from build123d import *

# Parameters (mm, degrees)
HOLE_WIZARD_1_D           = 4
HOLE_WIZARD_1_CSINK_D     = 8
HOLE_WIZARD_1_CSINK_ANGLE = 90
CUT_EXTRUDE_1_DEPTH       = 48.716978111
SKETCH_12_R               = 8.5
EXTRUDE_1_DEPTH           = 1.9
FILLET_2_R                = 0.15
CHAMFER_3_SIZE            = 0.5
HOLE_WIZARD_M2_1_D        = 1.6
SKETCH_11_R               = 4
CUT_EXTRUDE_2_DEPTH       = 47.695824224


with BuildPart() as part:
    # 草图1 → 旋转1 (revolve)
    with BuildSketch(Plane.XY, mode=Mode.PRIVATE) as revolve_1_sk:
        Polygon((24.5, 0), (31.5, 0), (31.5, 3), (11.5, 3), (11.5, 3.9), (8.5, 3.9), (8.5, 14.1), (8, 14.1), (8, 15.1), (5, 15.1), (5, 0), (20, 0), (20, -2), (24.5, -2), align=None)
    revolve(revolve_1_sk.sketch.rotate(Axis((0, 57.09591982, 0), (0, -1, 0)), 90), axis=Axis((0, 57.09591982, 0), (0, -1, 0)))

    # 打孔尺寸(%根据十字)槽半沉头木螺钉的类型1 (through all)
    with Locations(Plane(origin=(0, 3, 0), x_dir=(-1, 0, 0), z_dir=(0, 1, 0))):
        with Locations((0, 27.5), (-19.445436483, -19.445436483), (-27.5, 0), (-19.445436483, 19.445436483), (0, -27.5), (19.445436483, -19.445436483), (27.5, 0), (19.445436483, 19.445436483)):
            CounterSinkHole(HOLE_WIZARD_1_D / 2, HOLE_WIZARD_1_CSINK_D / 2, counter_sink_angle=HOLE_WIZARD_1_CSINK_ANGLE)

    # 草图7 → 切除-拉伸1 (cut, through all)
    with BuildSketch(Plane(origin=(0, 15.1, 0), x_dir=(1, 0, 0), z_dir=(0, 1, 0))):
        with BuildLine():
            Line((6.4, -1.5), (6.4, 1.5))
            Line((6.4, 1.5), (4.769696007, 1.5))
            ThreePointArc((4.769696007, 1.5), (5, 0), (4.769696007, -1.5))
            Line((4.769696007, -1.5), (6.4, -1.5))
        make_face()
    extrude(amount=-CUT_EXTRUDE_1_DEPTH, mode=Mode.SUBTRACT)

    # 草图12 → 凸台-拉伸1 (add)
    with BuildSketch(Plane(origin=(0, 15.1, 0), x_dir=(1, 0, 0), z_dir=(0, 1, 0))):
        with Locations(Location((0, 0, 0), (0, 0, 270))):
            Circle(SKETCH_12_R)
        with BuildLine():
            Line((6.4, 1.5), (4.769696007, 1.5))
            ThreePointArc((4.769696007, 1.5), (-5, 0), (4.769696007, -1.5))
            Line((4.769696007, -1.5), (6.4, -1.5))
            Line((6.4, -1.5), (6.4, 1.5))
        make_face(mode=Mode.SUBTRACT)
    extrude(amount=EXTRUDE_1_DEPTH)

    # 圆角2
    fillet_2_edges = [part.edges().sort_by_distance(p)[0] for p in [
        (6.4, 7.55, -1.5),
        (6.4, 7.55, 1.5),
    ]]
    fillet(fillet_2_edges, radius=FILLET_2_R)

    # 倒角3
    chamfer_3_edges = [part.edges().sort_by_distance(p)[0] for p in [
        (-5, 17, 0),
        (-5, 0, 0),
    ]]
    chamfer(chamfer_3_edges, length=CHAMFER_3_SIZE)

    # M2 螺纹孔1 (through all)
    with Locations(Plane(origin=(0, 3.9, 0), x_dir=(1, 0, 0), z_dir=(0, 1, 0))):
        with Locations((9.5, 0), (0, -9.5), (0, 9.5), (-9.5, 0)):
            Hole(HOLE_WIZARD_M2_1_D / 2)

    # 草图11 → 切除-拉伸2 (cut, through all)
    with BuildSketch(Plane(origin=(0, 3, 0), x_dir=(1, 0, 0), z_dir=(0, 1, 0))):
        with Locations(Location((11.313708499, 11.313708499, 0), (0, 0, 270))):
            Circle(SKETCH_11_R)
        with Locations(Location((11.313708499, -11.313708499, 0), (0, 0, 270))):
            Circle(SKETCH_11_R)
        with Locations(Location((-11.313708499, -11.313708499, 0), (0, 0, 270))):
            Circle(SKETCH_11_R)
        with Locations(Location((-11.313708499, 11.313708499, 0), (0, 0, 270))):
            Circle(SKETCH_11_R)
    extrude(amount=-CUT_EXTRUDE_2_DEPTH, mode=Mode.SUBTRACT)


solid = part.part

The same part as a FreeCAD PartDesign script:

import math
import FreeCAD as App
import Part
import Sketcher
from FreeCAD import Vector


def edges_at(feature, points):
    """Names of the edges that pass closest to the given points."""
    edges = feature.Shape.Edges
    near = lambda p: min(range(len(edges)), key=lambda i: edges[i].distToShape(Part.Vertex(*p))[0])
    return sorted({f"Edge{near(p) + 1}" for p in points})

doc = App.newDocument("Part")
body = doc.addObject("PartDesign::Body", "Body")

# Sketch on XY plane
sketch1 = body.newObject("Sketcher::SketchObject", "Sketch")
sketch1.AttachmentSupport = (doc.getObject("XY_Plane"), [""])
sketch1.MapMode = "FlatFace"
sketch1.addGeometry(Part.LineSegment(Vector(24.5, 0, 0), Vector(31.5, 0, 0)), False)
sketch1.addGeometry(Part.LineSegment(Vector(31.5, 0, 0), Vector(31.5, 3, 0)), False)
sketch1.addGeometry(Part.LineSegment(Vector(31.5, 3, 0), Vector(11.5, 3, 0)), False)
sketch1.addGeometry(Part.LineSegment(Vector(11.5, 3, 0), Vector(11.5, 3.9, 0)), False)
sketch1.addGeometry(Part.LineSegment(Vector(11.5, 3.9, 0), Vector(8.5, 3.9, 0)), False)
sketch1.addGeometry(Part.LineSegment(Vector(8.5, 3.9, 0), Vector(8.5, 14.1, 0)), False)
sketch1.addGeometry(Part.LineSegment(Vector(8.5, 14.1, 0), Vector(8, 14.1, 0)), False)
sketch1.addGeometry(Part.LineSegment(Vector(8, 14.1, 0), Vector(8, 15.1, 0)), False)
sketch1.addGeometry(Part.LineSegment(Vector(8, 15.1, 0), Vector(5, 15.1, 0)), False)
sketch1.addGeometry(Part.LineSegment(Vector(5, 15.1, 0), Vector(5, 0, 0)), False)
sketch1.addGeometry(Part.LineSegment(Vector(5, 0, 0), Vector(20, 0, 0)), False)
sketch1.addGeometry(Part.LineSegment(Vector(20, 0, 0), Vector(20, -2, 0)), False)
sketch1.addGeometry(Part.LineSegment(Vector(20, -2, 0), Vector(24.5, -2, 0)), False)
sketch1.addGeometry(Part.LineSegment(Vector(24.5, -2, 0), Vector(24.5, 0, 0)), False)
sketch1.addConstraint(Sketcher.Constraint("Coincident", 0, 2, 1, 1))
sketch1.addConstraint(Sketcher.Constraint("Coincident", 1, 2, 2, 1))
sketch1.addConstraint(Sketcher.Constraint("Coincident", 2, 2, 3, 1))
sketch1.addConstraint(Sketcher.Constraint("Coincident", 3, 2, 4, 1))
sketch1.addConstraint(Sketcher.Constraint("Coincident", 4, 2, 5, 1))
sketch1.addConstraint(Sketcher.Constraint("Coincident", 5, 2, 6, 1))
sketch1.addConstraint(Sketcher.Constraint("Coincident", 6, 2, 7, 1))
sketch1.addConstraint(Sketcher.Constraint("Coincident", 7, 2, 8, 1))
sketch1.addConstraint(Sketcher.Constraint("Coincident", 8, 2, 9, 1))
sketch1.addConstraint(Sketcher.Constraint("Coincident", 9, 2, 10, 1))
sketch1.addConstraint(Sketcher.Constraint("Coincident", 10, 2, 11, 1))
sketch1.addConstraint(Sketcher.Constraint("Coincident", 11, 2, 12, 1))
sketch1.addConstraint(Sketcher.Constraint("Coincident", 12, 2, 13, 1))
sketch1.addConstraint(Sketcher.Constraint("Coincident", 13, 2, 0, 1))
sketch1.addConstraint(Sketcher.Constraint("Horizontal", 0))
sketch1.addConstraint(Sketcher.Constraint("Vertical", 1))
sketch1.addConstraint(Sketcher.Constraint("Horizontal", 2))
sketch1.addConstraint(Sketcher.Constraint("Vertical", 3))
sketch1.addConstraint(Sketcher.Constraint("Horizontal", 4))
sketch1.addConstraint(Sketcher.Constraint("Vertical", 5))
sketch1.addConstraint(Sketcher.Constraint("Horizontal", 6))
sketch1.addConstraint(Sketcher.Constraint("Vertical", 7))
sketch1.addConstraint(Sketcher.Constraint("Horizontal", 8))
sketch1.addConstraint(Sketcher.Constraint("Vertical", 9))
sketch1.addConstraint(Sketcher.Constraint("Horizontal", 10))
sketch1.addConstraint(Sketcher.Constraint("Vertical", 11))
sketch1.addConstraint(Sketcher.Constraint("Horizontal", 12))
sketch1.addConstraint(Sketcher.Constraint("Vertical", 13))
sketch1.addConstraint(Sketcher.Constraint("PointOnObject", 0, 2, -1))
sketch1.addConstraint(Sketcher.Constraint("PointOnObject", 9, 2, -1))
sketch1.addConstraint(Sketcher.Constraint("Equal", 4, 8))
sketch1.addConstraint(Sketcher.Constraint("Equal", 8, 1))
sketch1.addConstraint(Sketcher.Constraint("DistanceX", 0, 1, 0, 2, 7.0))
sketch1.addConstraint(Sketcher.Constraint("DistanceX", 2, 2, 2, 1, 20.0))
sketch1.addConstraint(Sketcher.Constraint("DistanceX", 4, 2, 4, 1, 3.0))
sketch1.addConstraint(Sketcher.Constraint("DistanceX", 10, 1, 10, 2, 15.0))
sketch1.addConstraint(Sketcher.Constraint("DistanceY", 7, 1, 7, 2, 1.0))
sketch1.addConstraint(Sketcher.Constraint("DistanceY", 11, 2, 11, 1, 2.0))
sketch1.addConstraint(Sketcher.Constraint("DistanceX", 6, 2, 6, 1, 0.5))
sketch1.addConstraint(Sketcher.Constraint("DistanceY", 3, 1, 3, 2, 0.9))
sketch1.addConstraint(Sketcher.Constraint("DistanceY", 5, 1, 5, 2, 10.2))
sketch1.addConstraint(Sketcher.Constraint("DistanceX", -1, 1, 6, 2, 8.0))
revolution = body.newObject("PartDesign::Revolution", "Revolution")
revolution.Profile = sketch1
revolution.ReferenceAxis = (sketch1, ["V_Axis"])
revolution.Angle = 360

# Sketch on XZ plane
sketch2 = body.newObject("Sketcher::SketchObject", "Sketch001")
sketch2.AttachmentSupport = (doc.getObject("XZ_Plane"), [""])
sketch2.MapMode = "FlatFace"
sketch2.AttachmentOffset = App.Placement(Vector(0, 0, -3), App.Rotation())
sketch2.addGeometry(Part.Circle(Vector(0, 27.5, 0), Vector(0, 0, 1), 2), False)
sketch2.addGeometry(Part.Circle(Vector(19.445436, -19.445436, 0), Vector(0, 0, 1), 2), False)
sketch2.addGeometry(Part.Circle(Vector(27.5, 0, 0), Vector(0, 0, 1), 2), False)
sketch2.addGeometry(Part.Circle(Vector(19.445436, 19.445436, 0), Vector(0, 0, 1), 2), False)
sketch2.addGeometry(Part.Circle(Vector(0, -27.5, 0), Vector(0, 0, 1), 2), False)
sketch2.addGeometry(Part.Circle(Vector(-19.445436, -19.445436, 0), Vector(0, 0, 1), 2), False)
sketch2.addGeometry(Part.Circle(Vector(-27.5, 0, 0), Vector(0, 0, 1), 2), False)
sketch2.addGeometry(Part.Circle(Vector(-19.445436, 19.445436, 0), Vector(0, 0, 1), 2), False)
sketch2.addConstraint(Sketcher.Constraint("Equal", 0, 1))
sketch2.addConstraint(Sketcher.Constraint("Equal", 1, 2))
sketch2.addConstraint(Sketcher.Constraint("Equal", 2, 3))
sketch2.addConstraint(Sketcher.Constraint("Equal", 3, 4))
sketch2.addConstraint(Sketcher.Constraint("Equal", 4, 5))
sketch2.addConstraint(Sketcher.Constraint("Equal", 5, 6))
sketch2.addConstraint(Sketcher.Constraint("Equal", 6, 7))
sketch2.addConstraint(Sketcher.Constraint("Symmetric", 0, 3, 4, 3, -1, 1))
sketch2.addConstraint(Sketcher.Constraint("Symmetric", 3, 3, 5, 3, -1, 1))
sketch2.addConstraint(Sketcher.Constraint("Symmetric", 2, 3, 6, 3, -1, 1))
sketch2.addConstraint(Sketcher.Constraint("Symmetric", 1, 3, 7, 3, -1, 1))
sketch2.addConstraint(Sketcher.Constraint("Symmetric", 1, 3, 5, 3, -2))
sketch2.addConstraint(Sketcher.Constraint("PointOnObject", 0, 3, -2))
sketch2.addConstraint(Sketcher.Constraint("PointOnObject", 2, 3, -1))
sketch2.addConstraint(Sketcher.Constraint("Diameter", 0, 4.0))
sketch2.addConstraint(Sketcher.Constraint("DistanceY", 4, 3, 0, 3, 55.0))
sketch2.addConstraint(Sketcher.Constraint("DistanceX", -1, 1, 2, 3, 27.5))
sketch2.addConstraint(Sketcher.Constraint("DistanceX", -1, 1, 1, 3, 19.445436))
sketch2.addConstraint(Sketcher.Constraint("DistanceY", 1, 3, -1, 1, 19.445436))
doc.recompute()
hole = body.newObject("PartDesign::Hole", "Hole")
hole.Profile = sketch2
hole.ThreadType = "None"
hole.Diameter = 4
hole.DepthType = "ThroughAll"
hole.HoleCutType = "Countersink"
hole.HoleCutDiameter = 8
hole.HoleCutCountersinkAngle = 90
hole.Reversed = True

# Sketch on XZ plane
sketch3 = body.newObject("Sketcher::SketchObject", "Sketch002")
sketch3.AttachmentSupport = (doc.getObject("XZ_Plane"), [""])
sketch3.MapMode = "FlatFace"
sketch3.AttachmentOffset = App.Placement(Vector(0, 0, -15.1), App.Rotation())
sketch3.addGeometry(Part.LineSegment(Vector(6.4, 1.5, 0), Vector(6.4, -1.5, 0)), False)
sketch3.addGeometry(Part.LineSegment(Vector(6.4, -1.5, 0), Vector(4.769696, -1.5, 0)), False)
sketch3.addGeometry(Part.ArcOfCircle(Part.Circle(Vector(0, 0, 0), Vector(0, 0, 1), 5), math.radians(-17.457603), math.radians(17.457603)), False)
sketch3.addGeometry(Part.LineSegment(Vector(4.769696, 1.5, 0), Vector(6.4, 1.5, 0)), False)
sketch3.addConstraint(Sketcher.Constraint("Coincident", 0, 2, 1, 1))
sketch3.addConstraint(Sketcher.Constraint("Coincident", 1, 2, 2, 1))
sketch3.addConstraint(Sketcher.Constraint("Coincident", 2, 2, 3, 1))
sketch3.addConstraint(Sketcher.Constraint("Coincident", 3, 2, 0, 1))
sketch3.addConstraint(Sketcher.Constraint("Vertical", 0))
sketch3.addConstraint(Sketcher.Constraint("Horizontal", 1))
sketch3.addConstraint(Sketcher.Constraint("Horizontal", 3))
sketch3.addConstraint(Sketcher.Constraint("Coincident", 2, 3, -1, 1))
sketch3.addConstraint(Sketcher.Constraint("Vertical", 1, 2, 2, 2))
sketch3.addConstraint(Sketcher.Constraint("Radius", 2, 5.0))
sketch3.addConstraint(Sketcher.Constraint("DistanceY", 0, 2, 0, 1, 3.0))
sketch3.addConstraint(Sketcher.Constraint("DistanceX", -1, 1, 0, 2, 6.4))
pocket1 = body.newObject("PartDesign::Pocket", "Pocket")
pocket1.Profile = sketch3
pocket1.Type = "ThroughAll"
pocket1.Reversed = True

# Sketch on XZ plane
sketch4 = body.newObject("Sketcher::SketchObject", "Sketch003")
sketch4.AttachmentSupport = (doc.getObject("XZ_Plane"), [""])
sketch4.MapMode = "FlatFace"
sketch4.AttachmentOffset = App.Placement(Vector(0, 0, -15.1), App.Rotation())
sketch4.addGeometry(Part.Circle(Vector(0, 0, 0), Vector(0, 0, 1), 8.5), False)
sketch4.addGeometry(Part.LineSegment(Vector(4.769696, -1.5, 0), Vector(6.4, -1.5, 0)), False)
sketch4.addGeometry(Part.LineSegment(Vector(6.4, -1.5, 0), Vector(6.4, 1.5, 0)), False)
sketch4.addGeometry(Part.LineSegment(Vector(6.4, 1.5, 0), Vector(4.769696, 1.5, 0)), False)
sketch4.addGeometry(Part.ArcOfCircle(Part.Circle(Vector(0, 0, 0), Vector(0, 0, 1), 5), math.radians(17.457603), math.radians(342.542397)), False)
sketch4.addConstraint(Sketcher.Constraint("Coincident", 1, 2, 2, 1))
sketch4.addConstraint(Sketcher.Constraint("Coincident", 2, 2, 3, 1))
sketch4.addConstraint(Sketcher.Constraint("Coincident", 3, 2, 4, 1))
sketch4.addConstraint(Sketcher.Constraint("Coincident", 4, 2, 1, 1))
sketch4.addConstraint(Sketcher.Constraint("Horizontal", 1))
sketch4.addConstraint(Sketcher.Constraint("Vertical", 2))
sketch4.addConstraint(Sketcher.Constraint("Horizontal", 3))
sketch4.addConstraint(Sketcher.Constraint("Coincident", 0, 3, -1, 1))
sketch4.addConstraint(Sketcher.Constraint("Coincident", 4, 3, -1, 1))
sketch4.addConstraint(Sketcher.Constraint("Vertical", 3, 2, 4, 2))
sketch4.addConstraint(Sketcher.Constraint("Diameter", 0, 17.0))
sketch4.addConstraint(Sketcher.Constraint("Radius", 4, 5.0))
sketch4.addConstraint(Sketcher.Constraint("DistanceY", 2, 1, 2, 2, 3.0))
sketch4.addConstraint(Sketcher.Constraint("DistanceX", -1, 1, 1, 2, 6.4))
pad1 = body.newObject("PartDesign::Pad", "Pad")
pad1.Profile = sketch4
pad1.Length = 1.9
pad1.Reversed = True
doc.recompute()

fillet = body.newObject("PartDesign::Fillet", "Fillet")
fillet.Base = (pad1, edges_at(pad1, [(6.4, 8.5, -1.5), (6.4, 8.5, 1.5)]))
fillet.Radius = 0.15
doc.recompute()

chamfer = body.newObject("PartDesign::Chamfer", "Chamfer")
chamfer.Base = (fillet, edges_at(fillet, [(-5, 17, 0), (-5, 0, 0)]))
chamfer.Size = 0.5

# Sketch on XZ plane
sketch5 = body.newObject("Sketcher::SketchObject", "Sketch004")
sketch5.AttachmentSupport = (doc.getObject("XZ_Plane"), [""])
sketch5.MapMode = "FlatFace"
sketch5.AttachmentOffset = App.Placement(Vector(0, 0, -3.9), App.Rotation())
sketch5.addGeometry(Part.Circle(Vector(9.5, 0, 0), Vector(0, 0, 1), 0.8), False)
sketch5.addGeometry(Part.Circle(Vector(0, 9.5, 0), Vector(0, 0, 1), 0.8), False)
sketch5.addGeometry(Part.Circle(Vector(0, -9.5, 0), Vector(0, 0, 1), 0.8), False)
sketch5.addGeometry(Part.Circle(Vector(-9.5, 0, 0), Vector(0, 0, 1), 0.8), False)
sketch5.addConstraint(Sketcher.Constraint("Equal", 0, 1))
sketch5.addConstraint(Sketcher.Constraint("Equal", 1, 2))
sketch5.addConstraint(Sketcher.Constraint("Equal", 2, 3))
sketch5.addConstraint(Sketcher.Constraint("Symmetric", 1, 3, 2, 3, -1, 1))
sketch5.addConstraint(Sketcher.Constraint("Symmetric", 0, 3, 3, 3, -1, 1))
sketch5.addConstraint(Sketcher.Constraint("PointOnObject", 0, 3, -1))
sketch5.addConstraint(Sketcher.Constraint("PointOnObject", 1, 3, -2))
sketch5.addConstraint(Sketcher.Constraint("Diameter", 0, 1.6))
sketch5.addConstraint(Sketcher.Constraint("DistanceY", 2, 3, 1, 3, 19.0))
sketch5.addConstraint(Sketcher.Constraint("DistanceX", 3, 3, 0, 3, 19.0))
doc.recompute()
hole2 = body.newObject("PartDesign::Hole", "Hole001")
hole2.Profile = sketch5
hole2.ThreadType = "None"
hole2.Diameter = 1.6
hole2.DepthType = "ThroughAll"
hole2.Reversed = True

# Sketch on XZ plane
sketch6 = body.newObject("Sketcher::SketchObject", "Sketch005")
sketch6.AttachmentSupport = (doc.getObject("XZ_Plane"), [""])
sketch6.MapMode = "FlatFace"
sketch6.AttachmentOffset = App.Placement(Vector(0, 0, -3), App.Rotation())
sketch6.addGeometry(Part.Circle(Vector(11.313708, -11.313708, 0), Vector(0, 0, 1), 4), False)
sketch6.addGeometry(Part.Circle(Vector(11.313708, 11.313708, 0), Vector(0, 0, 1), 4), False)
sketch6.addGeometry(Part.Circle(Vector(-11.313708, 11.313708, 0), Vector(0, 0, 1), 4), False)
sketch6.addGeometry(Part.Circle(Vector(-11.313708, -11.313708, 0), Vector(0, 0, 1), 4), False)
sketch6.addConstraint(Sketcher.Constraint("Equal", 0, 1))
sketch6.addConstraint(Sketcher.Constraint("Equal", 1, 2))
sketch6.addConstraint(Sketcher.Constraint("Equal", 2, 3))
sketch6.addConstraint(Sketcher.Constraint("Symmetric", 0, 3, 2, 3, -1, 1))
sketch6.addConstraint(Sketcher.Constraint("Symmetric", 1, 3, 3, 3, -1, 1))
sketch6.addConstraint(Sketcher.Constraint("Symmetric", 1, 3, 2, 3, -2))
sketch6.addConstraint(Sketcher.Constraint("Diameter", 0, 8.0))
sketch6.addConstraint(Sketcher.Constraint("DistanceX", -1, 1, 0, 3, 11.313708))
sketch6.addConstraint(Sketcher.Constraint("DistanceY", 0, 3, -1, 1, 11.313708))
pocket2 = body.newObject("PartDesign::Pocket", "Pocket001")
pocket2.Profile = sketch6
pocket2.Type = "ThroughAll"
pocket2.Reversed = True

doc.recompute()
